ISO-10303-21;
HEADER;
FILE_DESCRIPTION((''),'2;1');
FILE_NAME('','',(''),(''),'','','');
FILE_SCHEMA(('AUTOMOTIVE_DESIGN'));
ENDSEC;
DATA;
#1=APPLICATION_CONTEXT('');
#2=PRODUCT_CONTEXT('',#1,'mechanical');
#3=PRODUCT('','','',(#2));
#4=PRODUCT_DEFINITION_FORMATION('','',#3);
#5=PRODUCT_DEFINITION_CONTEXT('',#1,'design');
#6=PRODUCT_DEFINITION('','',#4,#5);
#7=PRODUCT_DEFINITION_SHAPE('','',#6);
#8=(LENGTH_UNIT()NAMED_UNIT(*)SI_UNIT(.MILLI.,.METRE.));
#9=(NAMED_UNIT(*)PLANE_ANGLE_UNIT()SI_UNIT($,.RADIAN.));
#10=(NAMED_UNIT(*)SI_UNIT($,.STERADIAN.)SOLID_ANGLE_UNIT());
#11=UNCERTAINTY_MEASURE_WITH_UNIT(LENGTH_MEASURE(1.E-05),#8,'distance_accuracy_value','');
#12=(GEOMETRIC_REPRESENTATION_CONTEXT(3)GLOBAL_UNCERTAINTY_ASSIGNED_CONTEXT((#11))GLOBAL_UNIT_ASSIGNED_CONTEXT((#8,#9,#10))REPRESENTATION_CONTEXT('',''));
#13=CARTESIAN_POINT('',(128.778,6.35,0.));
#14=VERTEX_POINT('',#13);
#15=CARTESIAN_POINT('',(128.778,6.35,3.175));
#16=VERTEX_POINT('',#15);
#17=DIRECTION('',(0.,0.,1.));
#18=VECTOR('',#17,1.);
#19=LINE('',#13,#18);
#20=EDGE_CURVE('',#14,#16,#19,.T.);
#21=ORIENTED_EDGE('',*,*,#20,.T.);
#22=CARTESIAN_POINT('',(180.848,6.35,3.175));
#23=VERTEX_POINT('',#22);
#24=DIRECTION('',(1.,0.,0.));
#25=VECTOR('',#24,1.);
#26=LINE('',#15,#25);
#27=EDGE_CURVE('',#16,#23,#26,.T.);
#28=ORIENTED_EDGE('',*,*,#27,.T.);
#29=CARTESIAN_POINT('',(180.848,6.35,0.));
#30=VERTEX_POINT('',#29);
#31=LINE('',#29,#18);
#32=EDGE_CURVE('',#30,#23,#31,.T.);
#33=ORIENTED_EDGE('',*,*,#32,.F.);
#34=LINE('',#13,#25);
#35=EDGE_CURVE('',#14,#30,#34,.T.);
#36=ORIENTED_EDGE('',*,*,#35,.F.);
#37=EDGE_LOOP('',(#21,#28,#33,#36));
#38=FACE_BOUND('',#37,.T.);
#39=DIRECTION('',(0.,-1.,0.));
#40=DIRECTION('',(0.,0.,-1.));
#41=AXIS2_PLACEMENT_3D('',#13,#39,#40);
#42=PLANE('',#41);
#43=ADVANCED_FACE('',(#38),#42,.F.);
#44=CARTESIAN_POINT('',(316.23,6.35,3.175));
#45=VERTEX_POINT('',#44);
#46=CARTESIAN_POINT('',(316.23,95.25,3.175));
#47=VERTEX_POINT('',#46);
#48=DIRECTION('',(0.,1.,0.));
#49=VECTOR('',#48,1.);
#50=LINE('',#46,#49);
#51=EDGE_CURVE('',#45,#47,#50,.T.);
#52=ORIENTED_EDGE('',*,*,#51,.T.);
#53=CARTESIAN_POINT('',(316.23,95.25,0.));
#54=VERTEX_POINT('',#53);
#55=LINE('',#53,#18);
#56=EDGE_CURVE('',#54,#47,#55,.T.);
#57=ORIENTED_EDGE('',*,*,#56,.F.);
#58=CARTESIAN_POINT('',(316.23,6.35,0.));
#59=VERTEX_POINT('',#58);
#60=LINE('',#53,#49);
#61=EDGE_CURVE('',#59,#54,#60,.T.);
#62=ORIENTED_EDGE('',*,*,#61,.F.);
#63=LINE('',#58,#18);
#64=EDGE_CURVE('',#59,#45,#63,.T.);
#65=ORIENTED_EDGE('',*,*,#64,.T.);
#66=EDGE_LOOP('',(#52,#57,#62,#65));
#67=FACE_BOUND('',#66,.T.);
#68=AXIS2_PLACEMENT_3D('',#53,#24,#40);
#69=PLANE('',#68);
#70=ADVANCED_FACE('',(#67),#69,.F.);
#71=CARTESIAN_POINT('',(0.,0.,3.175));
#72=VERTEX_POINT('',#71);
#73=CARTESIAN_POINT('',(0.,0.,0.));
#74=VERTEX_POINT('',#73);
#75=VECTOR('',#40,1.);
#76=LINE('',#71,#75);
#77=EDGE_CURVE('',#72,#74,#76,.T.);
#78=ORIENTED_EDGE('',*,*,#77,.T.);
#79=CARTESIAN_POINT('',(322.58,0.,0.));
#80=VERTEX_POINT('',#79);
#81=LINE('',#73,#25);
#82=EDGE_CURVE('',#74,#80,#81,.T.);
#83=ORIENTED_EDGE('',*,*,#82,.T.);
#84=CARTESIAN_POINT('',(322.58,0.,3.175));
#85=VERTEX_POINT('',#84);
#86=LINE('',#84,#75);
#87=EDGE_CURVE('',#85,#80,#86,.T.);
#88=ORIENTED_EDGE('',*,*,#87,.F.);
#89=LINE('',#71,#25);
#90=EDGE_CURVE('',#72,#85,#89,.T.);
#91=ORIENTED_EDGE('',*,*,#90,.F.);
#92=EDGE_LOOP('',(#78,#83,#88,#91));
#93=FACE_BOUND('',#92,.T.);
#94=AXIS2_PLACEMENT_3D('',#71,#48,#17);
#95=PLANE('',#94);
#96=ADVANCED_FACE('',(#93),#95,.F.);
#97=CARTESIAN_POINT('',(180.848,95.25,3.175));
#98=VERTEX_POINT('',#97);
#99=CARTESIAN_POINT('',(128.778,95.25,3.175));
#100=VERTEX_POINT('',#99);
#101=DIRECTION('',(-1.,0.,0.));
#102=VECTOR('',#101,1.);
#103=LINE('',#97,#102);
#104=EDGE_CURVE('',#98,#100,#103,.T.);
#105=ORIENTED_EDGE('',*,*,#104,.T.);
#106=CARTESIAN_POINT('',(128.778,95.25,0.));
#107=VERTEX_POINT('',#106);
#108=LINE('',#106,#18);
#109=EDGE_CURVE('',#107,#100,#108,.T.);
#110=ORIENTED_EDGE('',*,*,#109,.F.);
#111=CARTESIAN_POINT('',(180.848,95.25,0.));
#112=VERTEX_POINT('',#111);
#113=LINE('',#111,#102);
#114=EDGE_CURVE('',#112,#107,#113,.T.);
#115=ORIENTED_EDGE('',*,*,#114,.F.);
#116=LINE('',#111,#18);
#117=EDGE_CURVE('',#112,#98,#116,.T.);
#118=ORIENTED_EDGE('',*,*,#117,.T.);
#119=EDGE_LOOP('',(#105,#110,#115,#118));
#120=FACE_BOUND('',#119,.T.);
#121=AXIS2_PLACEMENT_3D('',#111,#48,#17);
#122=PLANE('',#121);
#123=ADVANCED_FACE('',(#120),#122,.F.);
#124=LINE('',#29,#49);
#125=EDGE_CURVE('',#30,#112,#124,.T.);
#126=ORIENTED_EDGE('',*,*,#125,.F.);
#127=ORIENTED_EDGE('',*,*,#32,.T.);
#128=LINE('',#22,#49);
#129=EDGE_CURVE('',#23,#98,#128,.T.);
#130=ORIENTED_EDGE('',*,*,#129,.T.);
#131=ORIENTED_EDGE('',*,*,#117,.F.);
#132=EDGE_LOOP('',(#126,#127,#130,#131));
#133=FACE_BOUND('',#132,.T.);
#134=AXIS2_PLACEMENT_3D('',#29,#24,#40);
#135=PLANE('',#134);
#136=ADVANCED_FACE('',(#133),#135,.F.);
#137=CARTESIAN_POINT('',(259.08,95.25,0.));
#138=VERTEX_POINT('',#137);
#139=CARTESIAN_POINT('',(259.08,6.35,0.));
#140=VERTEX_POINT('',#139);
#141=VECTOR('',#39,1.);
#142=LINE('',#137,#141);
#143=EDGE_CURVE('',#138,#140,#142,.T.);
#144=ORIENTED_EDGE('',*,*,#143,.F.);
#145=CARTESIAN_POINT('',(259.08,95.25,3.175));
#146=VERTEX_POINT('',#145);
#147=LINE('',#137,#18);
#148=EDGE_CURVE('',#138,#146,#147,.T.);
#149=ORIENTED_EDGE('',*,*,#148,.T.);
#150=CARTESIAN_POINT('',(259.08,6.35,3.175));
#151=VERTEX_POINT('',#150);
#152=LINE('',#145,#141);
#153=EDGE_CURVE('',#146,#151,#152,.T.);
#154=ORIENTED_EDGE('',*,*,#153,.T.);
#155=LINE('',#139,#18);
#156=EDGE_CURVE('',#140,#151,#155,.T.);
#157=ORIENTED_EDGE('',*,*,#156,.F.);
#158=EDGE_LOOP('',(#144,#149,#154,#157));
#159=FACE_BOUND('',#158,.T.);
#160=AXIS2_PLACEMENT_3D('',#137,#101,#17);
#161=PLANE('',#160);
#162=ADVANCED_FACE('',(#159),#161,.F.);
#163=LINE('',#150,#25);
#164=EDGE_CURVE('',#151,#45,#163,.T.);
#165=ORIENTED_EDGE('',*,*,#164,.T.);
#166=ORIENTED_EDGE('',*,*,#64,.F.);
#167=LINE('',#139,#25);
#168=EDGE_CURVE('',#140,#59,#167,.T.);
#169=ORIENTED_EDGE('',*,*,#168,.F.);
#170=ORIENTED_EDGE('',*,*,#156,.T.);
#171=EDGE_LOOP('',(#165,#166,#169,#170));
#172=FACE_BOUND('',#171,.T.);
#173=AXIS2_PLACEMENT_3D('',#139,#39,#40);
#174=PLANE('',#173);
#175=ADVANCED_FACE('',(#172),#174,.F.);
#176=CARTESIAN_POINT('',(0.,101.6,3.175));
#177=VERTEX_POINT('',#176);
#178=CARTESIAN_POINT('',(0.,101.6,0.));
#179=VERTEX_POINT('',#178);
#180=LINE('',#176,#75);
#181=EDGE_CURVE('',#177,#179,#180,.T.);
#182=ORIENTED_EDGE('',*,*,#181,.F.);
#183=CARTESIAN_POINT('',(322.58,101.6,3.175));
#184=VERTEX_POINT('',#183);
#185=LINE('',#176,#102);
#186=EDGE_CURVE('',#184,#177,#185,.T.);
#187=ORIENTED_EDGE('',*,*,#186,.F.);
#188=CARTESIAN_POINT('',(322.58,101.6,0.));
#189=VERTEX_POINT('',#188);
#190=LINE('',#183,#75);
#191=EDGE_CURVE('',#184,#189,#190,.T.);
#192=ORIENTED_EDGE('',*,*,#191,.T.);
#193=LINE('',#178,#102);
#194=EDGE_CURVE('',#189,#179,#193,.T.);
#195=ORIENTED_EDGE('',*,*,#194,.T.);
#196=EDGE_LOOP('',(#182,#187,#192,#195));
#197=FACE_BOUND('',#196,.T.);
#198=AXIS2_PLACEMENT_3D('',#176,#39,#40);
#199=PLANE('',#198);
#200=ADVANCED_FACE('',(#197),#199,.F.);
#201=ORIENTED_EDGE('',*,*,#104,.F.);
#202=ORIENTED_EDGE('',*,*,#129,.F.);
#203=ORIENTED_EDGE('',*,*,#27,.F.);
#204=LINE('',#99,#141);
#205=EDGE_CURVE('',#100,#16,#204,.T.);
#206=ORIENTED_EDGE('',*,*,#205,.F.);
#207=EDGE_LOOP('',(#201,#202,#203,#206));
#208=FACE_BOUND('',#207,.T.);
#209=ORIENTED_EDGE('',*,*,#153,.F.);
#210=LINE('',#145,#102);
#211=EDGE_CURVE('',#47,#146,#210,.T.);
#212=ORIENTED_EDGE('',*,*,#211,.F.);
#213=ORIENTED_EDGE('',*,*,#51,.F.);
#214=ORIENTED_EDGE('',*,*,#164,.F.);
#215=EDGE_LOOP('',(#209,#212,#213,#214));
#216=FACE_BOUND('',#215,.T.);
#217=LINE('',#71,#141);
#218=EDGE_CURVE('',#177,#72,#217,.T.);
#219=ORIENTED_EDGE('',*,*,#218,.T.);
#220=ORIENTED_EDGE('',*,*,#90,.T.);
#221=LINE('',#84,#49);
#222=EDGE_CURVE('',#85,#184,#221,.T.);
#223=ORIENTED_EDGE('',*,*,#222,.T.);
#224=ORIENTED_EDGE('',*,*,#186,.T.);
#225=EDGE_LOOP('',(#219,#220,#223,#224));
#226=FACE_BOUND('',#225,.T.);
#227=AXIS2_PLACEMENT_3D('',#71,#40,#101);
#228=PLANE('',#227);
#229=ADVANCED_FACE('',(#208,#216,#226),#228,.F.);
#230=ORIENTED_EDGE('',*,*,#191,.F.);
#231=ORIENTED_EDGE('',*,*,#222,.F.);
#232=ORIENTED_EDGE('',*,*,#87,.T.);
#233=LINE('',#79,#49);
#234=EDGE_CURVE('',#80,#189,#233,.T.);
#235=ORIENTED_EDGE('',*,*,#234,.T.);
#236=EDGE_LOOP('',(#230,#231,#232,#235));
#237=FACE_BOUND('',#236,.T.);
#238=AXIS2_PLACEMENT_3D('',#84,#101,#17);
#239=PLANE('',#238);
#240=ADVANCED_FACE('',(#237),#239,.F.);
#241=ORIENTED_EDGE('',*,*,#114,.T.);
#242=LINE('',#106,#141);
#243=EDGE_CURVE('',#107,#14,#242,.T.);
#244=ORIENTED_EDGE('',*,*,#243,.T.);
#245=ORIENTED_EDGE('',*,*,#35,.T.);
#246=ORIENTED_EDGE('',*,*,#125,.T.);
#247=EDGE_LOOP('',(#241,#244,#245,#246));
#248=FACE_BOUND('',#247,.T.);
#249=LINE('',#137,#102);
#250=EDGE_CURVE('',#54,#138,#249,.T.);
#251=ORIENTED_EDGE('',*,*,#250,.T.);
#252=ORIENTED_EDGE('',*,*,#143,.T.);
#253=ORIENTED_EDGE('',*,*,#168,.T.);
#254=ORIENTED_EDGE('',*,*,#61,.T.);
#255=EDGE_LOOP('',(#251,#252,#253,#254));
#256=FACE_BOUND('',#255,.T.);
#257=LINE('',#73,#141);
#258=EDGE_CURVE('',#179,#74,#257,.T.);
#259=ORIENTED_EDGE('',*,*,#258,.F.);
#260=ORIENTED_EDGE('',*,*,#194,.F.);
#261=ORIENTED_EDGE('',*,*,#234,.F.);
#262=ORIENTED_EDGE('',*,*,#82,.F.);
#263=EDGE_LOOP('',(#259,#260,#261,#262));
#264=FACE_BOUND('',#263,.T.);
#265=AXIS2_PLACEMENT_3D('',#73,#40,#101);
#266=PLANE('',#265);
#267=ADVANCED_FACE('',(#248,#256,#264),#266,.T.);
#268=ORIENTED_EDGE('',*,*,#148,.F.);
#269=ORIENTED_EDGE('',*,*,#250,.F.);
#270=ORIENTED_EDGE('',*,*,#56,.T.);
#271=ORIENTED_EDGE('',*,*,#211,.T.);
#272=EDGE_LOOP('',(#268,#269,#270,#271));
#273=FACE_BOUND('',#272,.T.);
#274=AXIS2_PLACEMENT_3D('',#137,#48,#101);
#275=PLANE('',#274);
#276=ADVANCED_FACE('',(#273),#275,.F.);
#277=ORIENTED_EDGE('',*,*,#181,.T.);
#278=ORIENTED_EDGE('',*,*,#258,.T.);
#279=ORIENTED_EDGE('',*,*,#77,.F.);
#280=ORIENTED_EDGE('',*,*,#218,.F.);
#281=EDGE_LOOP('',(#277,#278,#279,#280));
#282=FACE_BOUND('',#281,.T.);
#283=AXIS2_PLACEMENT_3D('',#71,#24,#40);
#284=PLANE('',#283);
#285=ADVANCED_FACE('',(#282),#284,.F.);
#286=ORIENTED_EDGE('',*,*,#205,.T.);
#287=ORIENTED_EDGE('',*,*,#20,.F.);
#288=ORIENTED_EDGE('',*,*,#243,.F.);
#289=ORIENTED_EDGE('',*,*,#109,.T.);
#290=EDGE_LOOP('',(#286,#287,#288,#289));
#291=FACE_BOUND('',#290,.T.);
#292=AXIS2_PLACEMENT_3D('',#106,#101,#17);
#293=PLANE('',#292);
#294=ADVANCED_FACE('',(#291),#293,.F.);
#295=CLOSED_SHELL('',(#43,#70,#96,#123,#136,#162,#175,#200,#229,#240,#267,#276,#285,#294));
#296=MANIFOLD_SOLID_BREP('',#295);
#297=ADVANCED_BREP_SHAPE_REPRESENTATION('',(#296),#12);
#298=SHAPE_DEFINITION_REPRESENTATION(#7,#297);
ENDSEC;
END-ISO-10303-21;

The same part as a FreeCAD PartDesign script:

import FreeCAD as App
import Part
import Sketcher
from FreeCAD import Vector
Q = App.Units.Quantity

doc = App.newDocument("Part")
body = doc.addObject("PartDesign::Body", "Body")

sketch1 = body.newObject("Sketcher::SketchObject", "Sketch")
sketch1.AttachmentSupport = (doc.getObject("XY_Plane"), [""])
sketch1.MapMode = "FlatFace"
sketch1.addGeometry([
    Part.LineSegment(Vector(0, 101.6, 0), Vector(0, 0, 0)),
    Part.LineSegment(Vector(0, 0, 0), Vector(322.58, 0, 0)),
    Part.LineSegment(Vector(322.58, 0, 0), Vector(322.58, 101.6, 0)),
    Part.LineSegment(Vector(322.58, 101.6, 0), Vector(0, 101.6, 0)),
], False)
sketch1.addConstraint([
    Sketcher.Constraint("Coincident", 0, 2, 1, 1),
    Sketcher.Constraint("Coincident", 1, 2, 2, 1),
    Sketcher.Constraint("Coincident", 2, 2, 3, 1),
    Sketcher.Constraint("Coincident", 3, 2, 0, 1),
    Sketcher.Constraint("Vertical", 0),
    Sketcher.Constraint("Horizontal", 1),
    Sketcher.Constraint("Vertical", 2),
    Sketcher.Constraint("Horizontal", 3),
    Sketcher.Constraint("Coincident", 0, 2, -1, 1),
    Sketcher.Constraint("DistanceY", 0, 2, 0, 1, Q("4 in")),
    Sketcher.Constraint("DistanceX", 1, 1, 1, 2, Q("12.7 in")),
])
pad1 = body.newObject("PartDesign::Pad", "Pad")
pad1.Profile = sketch1
pad1.Length = Q("0.125 in")

sketch2 = body.newObject("Sketcher::SketchObject", "Sketch001")
sketch2.AttachmentSupport = (doc.getObject("XY_Plane"), [""])
sketch2.MapMode = "FlatFace"
sketch2.AttachmentOffset = App.Placement(Vector(0, 0, 0.125 * 25.4), App.Rotation())
sketch2.addGeometry([
    Part.LineSegment(Vector(128.778, 95.25, 0), Vector(128.778, 6.35, 0)),
    Part.LineSegment(Vector(128.778, 6.35, 0), Vector(180.848, 6.35, 0)),
    Part.LineSegment(Vector(180.848, 6.35, 0), Vector(180.848, 95.25, 0)),
    Part.LineSegment(Vector(180.848, 95.25, 0), Vector(128.778, 95.25, 0)),
    Part.LineSegment(Vector(259.08, 95.25, 0), Vector(259.08, 6.35, 0)),
    Part.LineSegment(Vector(259.08, 6.35, 0), Vector(316.23, 6.35, 0)),
    Part.LineSegment(Vector(316.23, 6.35, 0), Vector(316.23, 95.25, 0)),
    Part.LineSegment(Vector(316.23, 95.25, 0), Vector(259.08, 95.25, 0)),
], False)
sketch2.addConstraint([
    Sketcher.Constraint("Coincident", 0, 2, 1, 1),
    Sketcher.Constraint("Coincident", 1, 2, 2, 1),
    Sketcher.Constraint("Coincident", 2, 2, 3, 1),
    Sketcher.Constraint("Coincident", 3, 2, 0, 1),
    Sketcher.Constraint("Coincident", 4, 2, 5, 1),
    Sketcher.Constraint("Coincident", 5, 2, 6, 1),
    Sketcher.Constraint("Coincident", 6, 2, 7, 1),
    Sketcher.Constraint("Coincident", 7, 2, 4, 1),
    Sketcher.Constraint("Vertical", 0),
    Sketcher.Constraint("Horizontal", 1),
    Sketcher.Constraint("Vertical", 2),
    Sketcher.Constraint("Horizontal", 3),
    Sketcher.Constraint("Vertical", 4),
    Sketcher.Constraint("Horizontal", 5),
    Sketcher.Constraint("Vertical", 6),
    Sketcher.Constraint("Horizontal", 7),
    Sketcher.Constraint("Horizontal", 1, 2, 4, 2),
    Sketcher.Constraint("Horizontal", 3, 2, 6, 2),
    Sketcher.Constraint("DistanceY", 0, 2, 0, 1, Q("3.5 in")),
    Sketcher.Constraint("DistanceX", 1, 1, 1, 2, Q("2.05 in")),
    Sketcher.Constraint("DistanceX", 5, 1, 5, 2, Q("2.25 in")),
    Sketcher.Constraint("DistanceX", -1, 1, 4, 2, Q("10.2 in")),
    Sketcher.Constraint("DistanceX", -1, 1, 0, 2, Q("5.07 in")),
    Sketcher.Constraint("DistanceY", -1, 1, 0, 2, Q("0.25 in")),
])
pocket1 = body.newObject("PartDesign::Pocket", "Pocket")
pocket1.Profile = sketch2
pocket1.Type = "ThroughAll"

doc.recompute()
